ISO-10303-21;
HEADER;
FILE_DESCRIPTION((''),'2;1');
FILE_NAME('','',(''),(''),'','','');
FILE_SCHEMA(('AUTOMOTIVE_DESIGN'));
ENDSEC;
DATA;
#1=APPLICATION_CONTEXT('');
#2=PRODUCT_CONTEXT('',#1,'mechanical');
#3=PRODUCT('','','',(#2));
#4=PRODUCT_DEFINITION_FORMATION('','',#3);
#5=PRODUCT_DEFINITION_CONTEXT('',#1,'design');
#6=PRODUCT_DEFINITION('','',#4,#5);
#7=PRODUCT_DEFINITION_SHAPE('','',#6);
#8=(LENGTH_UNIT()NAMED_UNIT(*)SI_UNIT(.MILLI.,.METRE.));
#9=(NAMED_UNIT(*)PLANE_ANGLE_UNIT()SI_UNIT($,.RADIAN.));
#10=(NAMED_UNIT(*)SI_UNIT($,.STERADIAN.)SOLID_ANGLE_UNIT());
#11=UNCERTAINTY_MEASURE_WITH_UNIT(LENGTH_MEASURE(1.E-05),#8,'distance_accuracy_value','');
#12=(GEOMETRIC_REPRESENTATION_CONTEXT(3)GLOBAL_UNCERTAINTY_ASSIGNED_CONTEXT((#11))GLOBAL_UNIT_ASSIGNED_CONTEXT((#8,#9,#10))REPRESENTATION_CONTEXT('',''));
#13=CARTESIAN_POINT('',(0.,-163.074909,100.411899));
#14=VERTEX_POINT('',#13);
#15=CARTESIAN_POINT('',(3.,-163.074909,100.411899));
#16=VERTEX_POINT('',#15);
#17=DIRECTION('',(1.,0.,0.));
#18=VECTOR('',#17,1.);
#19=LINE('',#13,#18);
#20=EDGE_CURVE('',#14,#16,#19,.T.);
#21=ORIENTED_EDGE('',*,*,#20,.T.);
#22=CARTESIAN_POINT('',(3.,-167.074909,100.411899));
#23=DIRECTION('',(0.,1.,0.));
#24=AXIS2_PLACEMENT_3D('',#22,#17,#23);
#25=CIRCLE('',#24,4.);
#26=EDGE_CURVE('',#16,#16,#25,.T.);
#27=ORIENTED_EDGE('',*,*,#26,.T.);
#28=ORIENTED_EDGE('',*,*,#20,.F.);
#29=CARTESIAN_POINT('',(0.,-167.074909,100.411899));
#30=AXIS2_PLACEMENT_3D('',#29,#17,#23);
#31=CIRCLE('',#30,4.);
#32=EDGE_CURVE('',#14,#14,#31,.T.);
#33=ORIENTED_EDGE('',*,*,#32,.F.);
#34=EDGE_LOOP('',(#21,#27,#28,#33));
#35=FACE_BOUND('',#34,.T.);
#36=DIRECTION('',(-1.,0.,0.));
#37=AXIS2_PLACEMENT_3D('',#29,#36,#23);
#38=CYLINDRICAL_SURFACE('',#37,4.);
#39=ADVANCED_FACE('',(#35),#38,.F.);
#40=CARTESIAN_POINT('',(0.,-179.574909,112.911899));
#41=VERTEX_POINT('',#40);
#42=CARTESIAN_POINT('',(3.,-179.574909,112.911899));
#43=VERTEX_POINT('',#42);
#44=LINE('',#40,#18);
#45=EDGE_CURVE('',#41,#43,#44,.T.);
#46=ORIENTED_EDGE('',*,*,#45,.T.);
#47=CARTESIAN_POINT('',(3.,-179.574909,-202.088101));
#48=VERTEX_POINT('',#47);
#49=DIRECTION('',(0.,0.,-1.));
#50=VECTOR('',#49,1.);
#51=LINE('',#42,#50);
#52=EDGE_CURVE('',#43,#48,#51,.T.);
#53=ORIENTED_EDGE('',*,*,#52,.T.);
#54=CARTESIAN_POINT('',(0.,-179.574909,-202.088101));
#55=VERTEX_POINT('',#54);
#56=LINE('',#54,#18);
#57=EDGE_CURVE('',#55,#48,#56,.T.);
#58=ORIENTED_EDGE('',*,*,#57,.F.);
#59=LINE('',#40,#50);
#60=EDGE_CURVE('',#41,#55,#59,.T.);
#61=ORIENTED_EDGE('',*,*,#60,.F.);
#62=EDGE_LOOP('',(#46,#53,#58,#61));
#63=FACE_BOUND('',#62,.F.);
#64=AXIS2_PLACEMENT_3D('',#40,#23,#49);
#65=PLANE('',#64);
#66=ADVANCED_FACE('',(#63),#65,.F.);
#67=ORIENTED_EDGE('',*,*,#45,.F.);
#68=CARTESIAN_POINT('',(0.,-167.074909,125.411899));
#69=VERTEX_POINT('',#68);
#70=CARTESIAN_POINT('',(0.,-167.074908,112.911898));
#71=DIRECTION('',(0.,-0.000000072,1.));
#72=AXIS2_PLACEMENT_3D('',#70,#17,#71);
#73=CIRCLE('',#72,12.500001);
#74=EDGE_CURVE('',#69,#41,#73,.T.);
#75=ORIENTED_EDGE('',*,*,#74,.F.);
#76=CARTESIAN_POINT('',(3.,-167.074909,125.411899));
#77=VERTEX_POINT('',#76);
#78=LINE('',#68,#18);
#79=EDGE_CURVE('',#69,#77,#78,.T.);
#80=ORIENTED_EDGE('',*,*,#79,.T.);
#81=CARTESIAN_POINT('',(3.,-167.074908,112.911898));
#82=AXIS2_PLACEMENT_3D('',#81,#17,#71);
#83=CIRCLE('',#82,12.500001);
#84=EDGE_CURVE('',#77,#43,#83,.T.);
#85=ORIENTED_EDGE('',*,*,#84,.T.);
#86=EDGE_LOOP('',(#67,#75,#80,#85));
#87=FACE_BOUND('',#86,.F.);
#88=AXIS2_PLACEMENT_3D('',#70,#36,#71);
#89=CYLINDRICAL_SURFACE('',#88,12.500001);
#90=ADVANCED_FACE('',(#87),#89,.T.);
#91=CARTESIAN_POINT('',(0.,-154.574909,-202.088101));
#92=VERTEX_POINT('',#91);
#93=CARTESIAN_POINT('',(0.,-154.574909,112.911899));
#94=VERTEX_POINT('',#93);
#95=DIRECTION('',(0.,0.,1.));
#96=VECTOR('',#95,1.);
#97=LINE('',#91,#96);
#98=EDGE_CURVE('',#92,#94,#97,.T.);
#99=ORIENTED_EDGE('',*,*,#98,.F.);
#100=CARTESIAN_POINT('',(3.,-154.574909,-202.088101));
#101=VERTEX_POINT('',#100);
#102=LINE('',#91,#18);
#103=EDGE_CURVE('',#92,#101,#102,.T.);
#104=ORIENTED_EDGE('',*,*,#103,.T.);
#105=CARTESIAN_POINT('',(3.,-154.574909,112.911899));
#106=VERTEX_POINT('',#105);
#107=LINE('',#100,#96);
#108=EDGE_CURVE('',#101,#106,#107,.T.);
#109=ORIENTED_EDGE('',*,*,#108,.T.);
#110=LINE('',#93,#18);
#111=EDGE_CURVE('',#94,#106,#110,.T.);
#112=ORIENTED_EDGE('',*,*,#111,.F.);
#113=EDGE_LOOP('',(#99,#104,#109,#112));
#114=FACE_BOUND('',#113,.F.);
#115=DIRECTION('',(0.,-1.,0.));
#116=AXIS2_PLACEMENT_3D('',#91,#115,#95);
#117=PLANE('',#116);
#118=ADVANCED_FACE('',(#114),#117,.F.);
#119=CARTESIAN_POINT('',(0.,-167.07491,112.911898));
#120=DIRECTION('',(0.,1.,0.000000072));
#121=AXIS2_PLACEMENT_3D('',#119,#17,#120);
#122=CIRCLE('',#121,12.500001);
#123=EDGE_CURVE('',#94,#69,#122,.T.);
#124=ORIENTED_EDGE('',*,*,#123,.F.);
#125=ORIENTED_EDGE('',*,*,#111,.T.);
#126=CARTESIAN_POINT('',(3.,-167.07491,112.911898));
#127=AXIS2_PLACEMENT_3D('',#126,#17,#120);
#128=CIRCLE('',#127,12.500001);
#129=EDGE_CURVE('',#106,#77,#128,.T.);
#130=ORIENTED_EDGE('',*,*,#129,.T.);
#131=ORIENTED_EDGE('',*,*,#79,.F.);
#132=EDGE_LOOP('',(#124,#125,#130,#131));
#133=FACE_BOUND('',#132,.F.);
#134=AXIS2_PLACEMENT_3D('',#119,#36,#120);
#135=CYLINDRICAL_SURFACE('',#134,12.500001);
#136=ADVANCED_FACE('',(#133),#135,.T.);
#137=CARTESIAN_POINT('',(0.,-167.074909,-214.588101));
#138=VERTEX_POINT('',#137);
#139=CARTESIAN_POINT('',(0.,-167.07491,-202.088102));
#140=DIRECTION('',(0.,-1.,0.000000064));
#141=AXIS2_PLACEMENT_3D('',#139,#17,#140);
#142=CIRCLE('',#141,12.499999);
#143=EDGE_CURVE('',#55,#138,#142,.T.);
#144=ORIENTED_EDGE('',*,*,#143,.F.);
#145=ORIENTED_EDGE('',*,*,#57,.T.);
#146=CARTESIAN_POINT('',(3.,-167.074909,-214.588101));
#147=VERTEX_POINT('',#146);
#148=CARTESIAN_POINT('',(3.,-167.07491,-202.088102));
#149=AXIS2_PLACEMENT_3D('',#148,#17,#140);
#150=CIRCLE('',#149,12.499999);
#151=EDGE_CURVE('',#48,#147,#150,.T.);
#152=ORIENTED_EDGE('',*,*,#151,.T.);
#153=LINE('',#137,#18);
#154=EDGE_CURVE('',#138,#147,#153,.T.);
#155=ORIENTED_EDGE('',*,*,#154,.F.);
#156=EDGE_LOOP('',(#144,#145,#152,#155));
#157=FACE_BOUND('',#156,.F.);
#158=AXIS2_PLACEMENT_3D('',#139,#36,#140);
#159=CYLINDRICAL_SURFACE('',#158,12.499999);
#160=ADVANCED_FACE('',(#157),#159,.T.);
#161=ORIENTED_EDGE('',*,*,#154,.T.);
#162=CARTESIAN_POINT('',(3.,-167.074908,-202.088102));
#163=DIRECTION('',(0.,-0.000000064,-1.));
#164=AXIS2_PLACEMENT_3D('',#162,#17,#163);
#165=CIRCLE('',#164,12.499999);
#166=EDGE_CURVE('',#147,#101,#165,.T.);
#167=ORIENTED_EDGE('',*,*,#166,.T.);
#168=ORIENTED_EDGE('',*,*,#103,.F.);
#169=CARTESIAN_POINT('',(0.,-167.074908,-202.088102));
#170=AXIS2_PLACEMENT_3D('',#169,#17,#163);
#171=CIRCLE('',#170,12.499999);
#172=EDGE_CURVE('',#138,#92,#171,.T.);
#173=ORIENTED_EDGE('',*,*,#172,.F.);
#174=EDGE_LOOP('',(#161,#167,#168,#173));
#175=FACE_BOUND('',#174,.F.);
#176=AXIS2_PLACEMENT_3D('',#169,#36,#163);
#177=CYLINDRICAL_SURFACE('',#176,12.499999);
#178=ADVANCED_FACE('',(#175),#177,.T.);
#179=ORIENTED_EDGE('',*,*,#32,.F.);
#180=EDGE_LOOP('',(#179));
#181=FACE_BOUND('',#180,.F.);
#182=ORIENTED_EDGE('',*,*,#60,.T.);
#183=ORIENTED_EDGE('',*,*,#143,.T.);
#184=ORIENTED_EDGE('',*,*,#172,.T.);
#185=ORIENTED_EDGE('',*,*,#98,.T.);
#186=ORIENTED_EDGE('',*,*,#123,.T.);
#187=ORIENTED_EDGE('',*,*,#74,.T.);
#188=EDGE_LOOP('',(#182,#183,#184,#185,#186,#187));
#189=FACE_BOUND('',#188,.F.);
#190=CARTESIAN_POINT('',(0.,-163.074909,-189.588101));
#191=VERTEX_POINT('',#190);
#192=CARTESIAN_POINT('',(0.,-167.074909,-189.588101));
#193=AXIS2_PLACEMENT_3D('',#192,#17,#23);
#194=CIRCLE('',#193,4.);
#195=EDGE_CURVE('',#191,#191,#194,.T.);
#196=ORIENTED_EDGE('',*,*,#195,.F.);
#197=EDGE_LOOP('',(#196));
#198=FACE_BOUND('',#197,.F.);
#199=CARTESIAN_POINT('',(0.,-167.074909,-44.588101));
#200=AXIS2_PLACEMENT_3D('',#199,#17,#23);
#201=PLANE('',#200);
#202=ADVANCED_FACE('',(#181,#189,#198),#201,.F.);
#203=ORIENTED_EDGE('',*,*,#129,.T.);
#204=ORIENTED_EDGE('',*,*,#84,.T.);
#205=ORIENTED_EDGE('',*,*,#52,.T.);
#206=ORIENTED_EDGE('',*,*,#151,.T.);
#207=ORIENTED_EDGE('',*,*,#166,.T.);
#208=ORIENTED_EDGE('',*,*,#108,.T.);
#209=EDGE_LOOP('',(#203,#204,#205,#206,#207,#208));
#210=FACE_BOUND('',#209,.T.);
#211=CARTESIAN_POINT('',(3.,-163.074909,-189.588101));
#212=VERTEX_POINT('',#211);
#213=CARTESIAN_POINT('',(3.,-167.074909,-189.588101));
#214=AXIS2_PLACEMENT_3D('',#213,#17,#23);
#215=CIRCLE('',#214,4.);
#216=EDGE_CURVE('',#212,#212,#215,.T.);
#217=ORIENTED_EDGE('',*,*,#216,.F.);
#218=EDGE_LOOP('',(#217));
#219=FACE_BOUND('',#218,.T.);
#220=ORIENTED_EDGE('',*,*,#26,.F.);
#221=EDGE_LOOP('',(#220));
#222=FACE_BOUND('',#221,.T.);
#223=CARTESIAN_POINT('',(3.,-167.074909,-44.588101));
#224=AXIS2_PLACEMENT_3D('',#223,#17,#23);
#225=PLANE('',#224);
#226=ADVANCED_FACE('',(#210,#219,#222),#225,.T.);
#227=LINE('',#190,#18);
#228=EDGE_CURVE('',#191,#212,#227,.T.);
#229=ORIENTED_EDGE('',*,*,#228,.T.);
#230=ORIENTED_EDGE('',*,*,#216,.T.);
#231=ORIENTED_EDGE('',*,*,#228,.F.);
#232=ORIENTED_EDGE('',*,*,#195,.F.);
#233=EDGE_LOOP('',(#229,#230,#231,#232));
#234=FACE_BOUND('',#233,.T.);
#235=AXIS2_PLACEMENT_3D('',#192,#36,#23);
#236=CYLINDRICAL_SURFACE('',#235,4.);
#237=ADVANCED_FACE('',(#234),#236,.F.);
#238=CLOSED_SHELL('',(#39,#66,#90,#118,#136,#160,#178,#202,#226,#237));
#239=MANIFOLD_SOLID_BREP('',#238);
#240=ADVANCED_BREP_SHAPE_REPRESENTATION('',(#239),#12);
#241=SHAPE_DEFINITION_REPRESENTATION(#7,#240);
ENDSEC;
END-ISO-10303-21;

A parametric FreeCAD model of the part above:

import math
import FreeCAD as App
import Part
import Sketcher

V = App.Vector

doc = App.newDocument("Part")
body = doc.addObject("PartDesign::Body", "Body")

sketch1 = body.newObject("Sketcher::SketchObject", "Sketch")
sketch1.AttachmentSupport = (doc.getObject("YZ_Plane"), [""])
sketch1.MapMode = "FlatFace"
sketch1.addGeometry([
    Part.LineSegment(V(-179.6, 112.9, 0), V(-179.6, -202.1, 0)),
    Part.ArcOfCircle(Part.Circle(V(-167.1, -202.1, 0), V(0, 0, 1), 12.5), math.radians(180), math.radians(270)),
    Part.ArcOfCircle(Part.Circle(V(-167.1, -202.1, 0), V(0, 0, 1), 12.5), math.radians(-90), math.radians(0)),
    Part.LineSegment(V(-154.6, -202.1, 0), V(-154.6, 112.9, 0)),
    Part.ArcOfCircle(Part.Circle(V(-167.1, 112.9, 0), V(0, 0, 1), 12.5), math.radians(0), math.radians(90)),
    Part.ArcOfCircle(Part.Circle(V(-167.1, 112.9, 0), V(0, 0, 1), 12.5), math.radians(90), math.radians(180)),
    Part.Circle(V(-167.1, -189.6, 0), V(0, 0, 1), 4),
    Part.Circle(V(-167.1, 100.4, 0), V(0, 0, 1), 4),
], False)
sketch1.addConstraint([
    Sketcher.Constraint("Tangent", 0, 2, 1, 1),
    Sketcher.Constraint("Tangent", 1, 2, 2, 1),
    Sketcher.Constraint("Tangent", 2, 2, 3, 1),
    Sketcher.Constraint("Tangent", 3, 2, 4, 1),
    Sketcher.Constraint("Tangent", 4, 2, 5, 1),
    Sketcher.Constraint("Tangent", 5, 2, 0, 1),
    Sketcher.Constraint("Vertical", 0),
    Sketcher.Constraint("Vertical", 3),
    Sketcher.Constraint("Equal", 1, 2),
    Sketcher.Constraint("Equal", 2, 4),
    Sketcher.Constraint("Equal", 6, 7),
    Sketcher.Constraint("Vertical", 5, 3, 6, 3),
    Sketcher.Constraint("Vertical", 6, 3, 7, 3),
    Sketcher.Constraint("Vertical", 7, 3, 1, 2),
    Sketcher.Constraint("Vertical", 1, 2, 4, 2),
    Sketcher.Constraint("Diameter", 6, 8.0),
    Sketcher.Constraint("Radius", 1, 12.499999),
    Sketcher.Constraint("DistanceY", 0, 2, 0, 1, 315.0),
    Sketcher.Constraint("DistanceY", 6, 3, 7, 3, 290.0),
    Sketcher.Constraint("DistanceY", 1, 2, 6, 3, 25.0),
    Sketcher.Constraint("DistanceY", 1, 3, -1, 1, 202.088102),
    Sketcher.Constraint("DistanceX", 1, 3, -1, 1, 167.07491),
])
pad1 = body.newObject("PartDesign::Pad", "Pad")
pad1.Profile = sketch1
pad1.Length = 3

doc.recompute()
